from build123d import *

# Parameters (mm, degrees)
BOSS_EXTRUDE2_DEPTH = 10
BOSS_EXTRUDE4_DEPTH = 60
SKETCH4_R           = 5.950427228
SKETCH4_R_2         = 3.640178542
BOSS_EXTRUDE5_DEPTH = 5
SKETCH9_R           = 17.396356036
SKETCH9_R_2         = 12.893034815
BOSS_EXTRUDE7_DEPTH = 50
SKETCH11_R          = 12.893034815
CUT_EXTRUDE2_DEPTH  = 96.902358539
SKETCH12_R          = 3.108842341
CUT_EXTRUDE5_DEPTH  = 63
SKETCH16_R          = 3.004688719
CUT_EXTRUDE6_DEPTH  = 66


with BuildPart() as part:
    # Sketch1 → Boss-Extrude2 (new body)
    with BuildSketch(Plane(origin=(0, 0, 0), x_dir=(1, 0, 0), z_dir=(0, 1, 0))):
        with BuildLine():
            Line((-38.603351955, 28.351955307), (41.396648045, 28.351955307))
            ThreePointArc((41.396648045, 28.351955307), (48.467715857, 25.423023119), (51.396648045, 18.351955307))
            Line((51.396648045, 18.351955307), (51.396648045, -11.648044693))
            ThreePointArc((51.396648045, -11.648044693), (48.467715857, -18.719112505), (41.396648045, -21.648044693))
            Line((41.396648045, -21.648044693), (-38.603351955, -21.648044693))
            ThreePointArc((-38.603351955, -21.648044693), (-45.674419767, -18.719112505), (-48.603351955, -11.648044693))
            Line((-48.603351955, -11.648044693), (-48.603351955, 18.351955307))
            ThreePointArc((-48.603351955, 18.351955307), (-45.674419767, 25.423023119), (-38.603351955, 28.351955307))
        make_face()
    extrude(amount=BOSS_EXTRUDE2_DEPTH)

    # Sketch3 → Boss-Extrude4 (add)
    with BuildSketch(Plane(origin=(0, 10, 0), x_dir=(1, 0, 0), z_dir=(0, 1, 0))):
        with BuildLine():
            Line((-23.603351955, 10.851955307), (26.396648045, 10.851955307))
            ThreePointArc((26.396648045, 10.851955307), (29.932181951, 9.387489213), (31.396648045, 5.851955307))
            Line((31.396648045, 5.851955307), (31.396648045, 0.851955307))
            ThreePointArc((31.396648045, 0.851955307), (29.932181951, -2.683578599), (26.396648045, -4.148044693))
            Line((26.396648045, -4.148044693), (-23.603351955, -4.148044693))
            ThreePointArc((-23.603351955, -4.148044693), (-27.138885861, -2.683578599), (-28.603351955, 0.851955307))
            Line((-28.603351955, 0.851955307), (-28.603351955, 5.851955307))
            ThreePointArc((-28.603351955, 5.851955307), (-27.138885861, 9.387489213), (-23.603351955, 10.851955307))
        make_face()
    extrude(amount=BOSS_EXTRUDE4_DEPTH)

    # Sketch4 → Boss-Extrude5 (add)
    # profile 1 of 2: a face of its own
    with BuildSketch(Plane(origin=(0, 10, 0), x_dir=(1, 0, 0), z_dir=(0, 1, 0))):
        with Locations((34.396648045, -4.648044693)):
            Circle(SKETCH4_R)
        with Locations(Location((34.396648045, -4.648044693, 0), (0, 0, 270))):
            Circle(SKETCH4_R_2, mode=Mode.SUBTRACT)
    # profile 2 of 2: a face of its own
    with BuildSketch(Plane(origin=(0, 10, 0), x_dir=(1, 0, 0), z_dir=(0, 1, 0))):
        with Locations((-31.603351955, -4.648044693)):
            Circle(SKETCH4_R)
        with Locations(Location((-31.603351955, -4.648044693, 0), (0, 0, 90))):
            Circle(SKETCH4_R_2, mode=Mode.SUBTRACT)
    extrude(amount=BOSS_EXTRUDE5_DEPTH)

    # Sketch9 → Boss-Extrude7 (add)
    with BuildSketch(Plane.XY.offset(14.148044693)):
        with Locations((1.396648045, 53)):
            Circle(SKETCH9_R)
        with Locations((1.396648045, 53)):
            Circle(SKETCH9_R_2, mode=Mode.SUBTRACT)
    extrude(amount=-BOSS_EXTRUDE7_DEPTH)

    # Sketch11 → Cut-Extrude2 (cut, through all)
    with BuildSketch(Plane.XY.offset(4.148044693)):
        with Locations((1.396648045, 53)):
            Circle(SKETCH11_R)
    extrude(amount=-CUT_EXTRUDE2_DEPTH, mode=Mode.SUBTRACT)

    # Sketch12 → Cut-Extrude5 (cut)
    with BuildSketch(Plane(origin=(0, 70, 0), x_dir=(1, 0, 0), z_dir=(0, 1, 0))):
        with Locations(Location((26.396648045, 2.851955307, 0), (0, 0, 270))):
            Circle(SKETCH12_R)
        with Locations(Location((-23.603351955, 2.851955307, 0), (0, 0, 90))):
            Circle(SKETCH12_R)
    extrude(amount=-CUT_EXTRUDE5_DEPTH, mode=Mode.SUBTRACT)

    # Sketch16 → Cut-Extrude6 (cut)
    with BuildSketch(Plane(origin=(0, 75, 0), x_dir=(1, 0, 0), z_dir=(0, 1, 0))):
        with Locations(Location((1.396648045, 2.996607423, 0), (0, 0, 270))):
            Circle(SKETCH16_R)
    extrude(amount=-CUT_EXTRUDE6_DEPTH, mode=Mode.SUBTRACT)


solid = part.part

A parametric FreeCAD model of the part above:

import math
import FreeCAD as App
import Part
import Sketcher
Q = App.Units.Quantity

doc = App.newDocument("Part")
body = doc.addObject("PartDesign::Body", "Body")

# Sketch on XZ plane
sketch1 = body.newObject("Sketcher::SketchObject", "Sketch")
sketch1.AttachmentSupport = (doc.getObject("XZ_Plane"), [""])
sketch1.MapMode = "FlatFace"
sketch1.addGeometry(Part.LineSegment(App.Vector(41, -28, 0), App.Vector(-39, -28, 0)), False)
sketch1.addGeometry(Part.ArcOfCircle(Part.Circle(App.Vector(-39, -18, 0), App.Vector(0, 0, 1), 10), math.radians(180), math.radians(270)), False)
sketch1.addGeometry(Part.LineSegment(App.Vector(-49, -18, 0), App.Vector(-49, 12, 0)), False)
sketch1.addGeometry(Part.ArcOfCircle(Part.Circle(App.Vector(-39, 12, 0), App.Vector(0, 0, 1), 10), math.radians(90), math.radians(180)), False)
sketch1.addGeometry(Part.LineSegment(App.Vector(-39, 22, 0), App.Vector(41, 22, 0)), False)
sketch1.addGeometry(Part.ArcOfCircle(Part.Circle(App.Vector(41, 12, 0), App.Vector(0, 0, 1), 10), math.radians(0), math.radians(90)), False)
sketch1.addGeometry(Part.LineSegment(App.Vector(51, 12, 0), App.Vector(51, -18, 0)), False)
sketch1.addGeometry(Part.ArcOfCircle(Part.Circle(App.Vector(41, -18, 0), App.Vector(0, 0, 1), 10), math.radians(-90), math.radians(0)), False)
sketch1.addConstraint(Sketcher.Constraint("Tangent", 0, 2, 1, 2))
sketch1.addConstraint(Sketcher.Constraint("Tangent", 1, 1, 2, 1))
sketch1.addConstraint(Sketcher.Constraint("Tangent", 2, 2, 3, 2))
sketch1.addConstraint(Sketcher.Constraint("Tangent", 3, 1, 4, 1))
sketch1.addConstraint(Sketcher.Constraint("Tangent", 4, 2, 5, 2))
sketch1.addConstraint(Sketcher.Constraint("Tangent", 5, 1, 6, 1))
sketch1.addConstraint(Sketcher.Constraint("Tangent", 6, 2, 7, 2))
sketch1.addConstraint(Sketcher.Constraint("Tangent", 7, 1, 0, 1))
sketch1.addConstraint(Sketcher.Constraint("Horizontal", 0))
sketch1.addConstraint(Sketcher.Constraint("Vertical", 2))
sketch1.addConstraint(Sketcher.Constraint("Horizontal", 4))
sketch1.addConstraint(Sketcher.Constraint("Vertical", 6))
sketch1.addConstraint(Sketcher.Constraint("Equal", 1, 3))
sketch1.addConstraint(Sketcher.Constraint("Equal", 3, 5))
sketch1.addConstraint(Sketcher.Constraint("Equal", 5, 7))
sketch1.addConstraint(Sketcher.Constraint("Radius", 1, Q("10 mm")))
sketch1.addConstraint(Sketcher.Constraint("DistanceX", 0, 2, 0, 1, Q("80 mm")))
sketch1.addConstraint(Sketcher.Constraint("DistanceY", 2, 1, 2, 2, Q("30 mm")))
sketch1.addConstraint(Sketcher.Constraint("DistanceX", 1, 3, -1, 1, Q("38.603352 mm")))
sketch1.addConstraint(Sketcher.Constraint("DistanceY", 1, 3, -1, 1, Q("18.351955 mm")))
pad1 = body.newObject("PartDesign::Pad", "Pad")
pad1.Profile = sketch1
pad1.Length = 10
pad1.Reversed = True

# Sketch on XZ plane
sketch2 = body.newObject("Sketcher::SketchObject", "Sketch001")
sketch2.AttachmentSupport = (doc.getObject("XZ_Plane"), [""])
sketch2.MapMode = "FlatFace"
sketch2.AttachmentOffset = App.Placement(App.Vector(0, 0, -10), App.Rotation())
sketch2.addGeometry(Part.LineSegment(App.Vector(26, -11, 0), App.Vector(-24, -11, 0)), False)
sketch2.addGeometry(Part.ArcOfCircle(Part.Circle(App.Vector(-24, -6, 0), App.Vector(0, 0, 1), 5), math.radians(180), math.radians(270)), False)
sketch2.addGeometry(Part.LineSegment(App.Vector(-29, -6, 0), App.Vector(-29, -1, 0)), False)
sketch2.addGeometry(Part.ArcOfCircle(Part.Circle(App.Vector(-24, -1, 0), App.Vector(0, 0, 1), 5), math.radians(90), math.radians(180)), False)
sketch2.addGeometry(Part.LineSegment(App.Vector(-24, 4, 0), App.Vector(26, 4, 0)), False)
sketch2.addGeometry(Part.ArcOfCircle(Part.Circle(App.Vector(26, -1, 0), App.Vector(0, 0, 1), 5), math.radians(0), math.radians(90)), False)
sketch2.addGeometry(Part.LineSegment(App.Vector(31, -1, 0), App.Vector(31, -6, 0)), False)
sketch2.addGeometry(Part.ArcOfCircle(Part.Circle(App.Vector(26, -6, 0), App.Vector(0, 0, 1), 5), math.radians(-90), math.radians(0)), False)
sketch2.addConstraint(Sketcher.Constraint("Tangent", 0, 2, 1, 2))
sketch2.addConstraint(Sketcher.Constraint("Tangent", 1, 1, 2, 1))
sketch2.addConstraint(Sketcher.Constraint("Tangent", 2, 2, 3, 2))
sketch2.addConstraint(Sketcher.Constraint("Tangent", 3, 1, 4, 1))
sketch2.addConstraint(Sketcher.Constraint("Tangent", 4, 2, 5, 2))
sketch2.addConstraint(Sketcher.Constraint("Tangent", 5, 1, 6, 1))
sketch2.addConstraint(Sketcher.Constraint("Tangent", 6, 2, 7, 2))
sketch2.addConstraint(Sketcher.Constraint("Tangent", 7, 1, 0, 1))
sketch2.addConstraint(Sketcher.Constraint("Horizontal", 0))
sketch2.addConstraint(Sketcher.Constraint("Vertical", 2))
sketch2.addConstraint(Sketcher.Constraint("Horizontal", 4))
sketch2.addConstraint(Sketcher.Constraint("Vertical", 6))
sketch2.addConstraint(Sketcher.Constraint("Equal", 1, 3))
sketch2.addConstraint(Sketcher.Constraint("Equal", 3, 5))
sketch2.addConstraint(Sketcher.Constraint("Equal", 5, 7))
sketch2.addConstraint(Sketcher.Constraint("Radius", 1, Q("5 mm")))
sketch2.addConstraint(Sketcher.Constraint("DistanceX", 0, 2, 0, 1, Q("50 mm")))
sketch2.addConstraint(Sketcher.Constraint("DistanceY", 2, 1, 2, 2, Q("5 mm")))
sketch2.addConstraint(Sketcher.Constraint("DistanceX", 1, 3, -1, 1, Q("23.603352 mm")))
sketch2.addConstraint(Sketcher.Constraint("DistanceY", 1, 3, -1, 1, Q("5.851955 mm")))
pad2 = body.newObject("PartDesign::Pad", "Pad001")
pad2.Profile = sketch2
pad2.Length = 60
pad2.Reversed = True

# Sketch on XZ plane
sketch3 = body.newObject("Sketcher::SketchObject", "Sketch002")
sketch3.AttachmentSupport = (doc.getObject("XZ_Plane"), [""])
sketch3.MapMode = "FlatFace"
sketch3.AttachmentOffset = App.Placement(App.Vector(0, 0, -10), App.Rotation())
sketch3.addGeometry(Part.Circle(App.Vector(34.4, 4.6, 0), App.Vector(0, 0, 1), 6), False)
sketch3.addGeometry(Part.Circle(App.Vector(34.4, 4.6, 0), App.Vector(0, 0, 1), 3.6), False)
sketch3.addGeometry(Part.Circle(App.Vector(-31.6, 4.6, 0), App.Vector(0, 0, 1), 6), False)
sketch3.addGeometry(Part.Circle(App.Vector(-31.6, 4.6, 0), App.Vector(0, 0, 1), 3.6), False)
sketch3.addConstraint(Sketcher.Constraint("Coincident", 1, 3, 0, 3))
sketch3.addConstraint(Sketcher.Constraint("Coincident", 3, 3, 2, 3))
sketch3.addConstraint(Sketcher.Constraint("Equal", 0, 2))
sketch3.addConstraint(Sketcher.Constraint("Equal", 1, 3))
sketch3.addConstraint(Sketcher.Constraint("Horizontal", 1, 3, 2, 3))
sketch3.addConstraint(Sketcher.Constraint("DistanceX", 2, 3, 0, 3, Q("66 mm")))
sketch3.addConstraint(Sketcher.Constraint("Diameter", 0, Q("11.900854 mm")))
sketch3.addConstraint(Sketcher.Constraint("Diameter", 1, Q("7.280357 mm")))
sketch3.addConstraint(Sketcher.Constraint("DistanceX", -1, 1, 0, 3, Q("34.396648 mm")))
sketch3.addConstraint(Sketcher.Constraint("DistanceY", -1, 1, 0, 3, Q("4.648045 mm")))
pad3 = body.newObject("PartDesign::Pad", "Pad002")
pad3.Profile = sketch3
pad3.Length = 5
pad3.Reversed = True

# Sketch on XY plane
sketch4 = body.newObject("Sketcher::SketchObject", "Sketch003")
sketch4.AttachmentSupport = (doc.getObject("XY_Plane"), [""])
sketch4.MapMode = "FlatFace"
sketch4.AttachmentOffset = App.Placement(App.Vector(0, 0, 14.148045), App.Rotation())
sketch4.addGeometry(Part.Circle(App.Vector(1, 53, 0), App.Vector(0, 0, 1), 17), False)
sketch4.addGeometry(Part.Circle(App.Vector(1, 53, 0), App.Vector(0, 0, 1), 13), False)
sketch4.addConstraint(Sketcher.Constraint("Coincident", 1, 3, 0, 3))
sketch4.addConstraint(Sketcher.Constraint("DistanceY", -1, 1, 0, 3, Q("53 mm")))
sketch4.addConstraint(Sketcher.Constraint("Diameter", 1, Q("25.78607 mm")))
sketch4.addConstraint(Sketcher.Constraint("Diameter", 0, Q("34.792712 mm")))
sketch4.addConstraint(Sketcher.Constraint("DistanceX", -1, 1, 0, 3, Q("1.396648 mm")))
pad4 = body.newObject("PartDesign::Pad", "Pad003")
pad4.Profile = sketch4
pad4.Length = 50
pad4.Reversed = True

# Sketch on XY plane
sketch5 = body.newObject("Sketcher::SketchObject", "Sketch004")
sketch5.AttachmentSupport = (doc.getObject("XY_Plane"), [""])
sketch5.MapMode = "FlatFace"
sketch5.AttachmentOffset = App.Placement(App.Vector(0, 0, 4.148045), App.Rotation())
sketch5.addGeometry(Part.Circle(App.Vector(1, 53, 0), App.Vector(0, 0, 1), 13), False)
sketch5.addConstraint(Sketcher.Constraint("DistanceY", -1, 1, 0, 3, Q("53 mm")))
sketch5.addConstraint(Sketcher.Constraint("Diameter", 0, Q("25.78607 mm")))
sketch5.addConstraint(Sketcher.Constraint("DistanceX", -1, 1, 0, 3, Q("1.396648 mm")))
pocket1 = body.newObject("PartDesign::Pocket", "Pocket")
pocket1.Profile = sketch5
pocket1.Type = "ThroughAll"

# Sketch on XZ plane
sketch6 = body.newObject("Sketcher::SketchObject", "Sketch005")
sketch6.AttachmentSupport = (doc.getObject("XZ_Plane"), [""])
sketch6.MapMode = "FlatFace"
sketch6.AttachmentOffset = App.Placement(App.Vector(0, 0, -70), App.Rotation())
sketch6.addGeometry(Part.Circle(App.Vector(26.4, -2.9, 0), App.Vector(0, 0, 1), 3.1), False)
sketch6.addGeometry(Part.Circle(App.Vector(-23.6, -2.9, 0), App.Vector(0, 0, 1), 3.1), False)
sketch6.addConstraint(Sketcher.Constraint("Equal", 0, 1))
sketch6.addConstraint(Sketcher.Constraint("Horizontal", 0, 3, 1, 3))
sketch6.addConstraint(Sketcher.Constraint("DistanceX", 1, 3, 0, 3, Q("50 mm")))
sketch6.addConstraint(Sketcher.Constraint("Diameter", 0, Q("6.217685 mm")))
sketch6.addConstraint(Sketcher.Constraint("DistanceX", -1, 1, 0, 3, Q("26.396648 mm")))
sketch6.addConstraint(Sketcher.Constraint("DistanceY", 0, 3, -1, 1, Q("2.851955 mm")))
pocket2 = body.newObject("PartDesign::Pocket", "Pocket001")
pocket2.Profile = sketch6
pocket2.Length = 63
pocket2.Reversed = True

# Sketch on XZ plane
sketch7 = body.newObject("Sketcher::SketchObject", "Sketch006")
sketch7.AttachmentSupport = (doc.getObject("XZ_Plane"), [""])
sketch7.MapMode = "FlatFace"
sketch7.AttachmentOffset = App.Placement(App.Vector(0, 0, -75), App.Rotation())
sketch7.addGeometry(Part.Circle(App.Vector(1.4, -3, 0), App.Vector(0, 0, 1), 3), False)
sketch7.addConstraint(Sketcher.Constraint("Diameter", 0, Q("6.009377 mm")))
sketch7.addConstraint(Sketcher.Constraint("DistanceX", -1, 1, 0, 3, Q("1.396648 mm")))
sketch7.addConstraint(Sketcher.Constraint("DistanceY", 0, 3, -1, 1, Q("2.996607 mm")))
pocket3 = body.newObject("PartDesign::Pocket", "Pocket002")
pocket3.Profile = sketch7
pocket3.Length = 66
pocket3.Reversed = True

doc.recompute()
